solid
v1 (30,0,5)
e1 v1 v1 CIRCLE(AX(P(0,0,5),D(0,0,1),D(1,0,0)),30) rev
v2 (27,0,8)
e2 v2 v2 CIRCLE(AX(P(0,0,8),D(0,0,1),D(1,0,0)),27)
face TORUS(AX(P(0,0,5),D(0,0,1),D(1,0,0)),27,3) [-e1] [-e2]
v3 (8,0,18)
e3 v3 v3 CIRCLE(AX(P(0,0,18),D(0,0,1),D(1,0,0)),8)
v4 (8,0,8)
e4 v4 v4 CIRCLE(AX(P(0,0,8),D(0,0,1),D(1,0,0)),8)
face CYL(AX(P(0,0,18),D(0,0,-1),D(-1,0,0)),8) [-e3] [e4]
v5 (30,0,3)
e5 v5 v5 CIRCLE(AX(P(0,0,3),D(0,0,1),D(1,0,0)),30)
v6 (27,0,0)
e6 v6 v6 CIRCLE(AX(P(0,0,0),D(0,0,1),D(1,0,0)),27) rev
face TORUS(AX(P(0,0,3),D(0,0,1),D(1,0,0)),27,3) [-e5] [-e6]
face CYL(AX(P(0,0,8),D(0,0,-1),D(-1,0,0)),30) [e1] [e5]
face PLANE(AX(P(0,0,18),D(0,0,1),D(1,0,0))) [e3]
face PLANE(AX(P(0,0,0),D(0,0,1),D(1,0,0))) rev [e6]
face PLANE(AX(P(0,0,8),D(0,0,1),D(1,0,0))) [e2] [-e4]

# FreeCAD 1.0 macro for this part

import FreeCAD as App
import Part
import Sketcher
from FreeCAD import Vector
Q = App.Units.Quantity


def edges_at(feature, points):
    """Names of the edges that pass closest to the given points."""
    edges = feature.Shape.Edges
    near = lambda p: min(range(len(edges)), key=lambda i: edges[i].distToShape(Part.Vertex(*p))[0])
    return sorted({f"Edge{near(p) + 1}" for p in points})

doc = App.newDocument("Part")
body = doc.addObject("PartDesign::Body", "Body")

# Sketch on XY plane
sketch1 = body.newObject("Sketcher::SketchObject", "Sketch")
sketch1.AttachmentSupport = (doc.getObject("XY_Plane"), [""])
sketch1.MapMode = "FlatFace"
sketch1.addGeometry(Part.Circle(Vector(0, 0, 0), Vector(0, 0, 1), 30), False)
sketch1.addConstraint(Sketcher.Constraint("Coincident", 0, 3, -1, 1))
sketch1.addConstraint(Sketcher.Constraint("Diameter", 0, Q("60 mm")))
pad1 = body.newObject("PartDesign::Pad", "Pad")
pad1.Profile = sketch1
pad1.Length = 8

# Sketch on XY plane
sketch2 = body.newObject("Sketcher::SketchObject", "Sketch001")
sketch2.AttachmentSupport = (doc.getObject("XY_Plane"), [""])
sketch2.MapMode = "FlatFace"
sketch2.AttachmentOffset = App.Placement(Vector(0, 0, 8), App.Rotation())
sketch2.addGeometry(Part.Circle(Vector(0, 0, 0), Vector(0, 0, 1), 8), False)
sketch2.addConstraint(Sketcher.Constraint("Coincident", 0, 3, -1, 1))
sketch2.addConstraint(Sketcher.Constraint("Diameter", 0, Q("16 mm")))
pad2 = body.newObject("PartDesign::Pad", "Pad001")
pad2.Profile = sketch2
pad2.Length = 10
doc.recompute()

fillet = body.newObject("PartDesign::Fillet", "Fillet")
fillet.Base = (pad2, edges_at(pad2, [(-30, 0, 0), (-30, 0, 8)]))
fillet.Radius = 3

doc.recompute()
